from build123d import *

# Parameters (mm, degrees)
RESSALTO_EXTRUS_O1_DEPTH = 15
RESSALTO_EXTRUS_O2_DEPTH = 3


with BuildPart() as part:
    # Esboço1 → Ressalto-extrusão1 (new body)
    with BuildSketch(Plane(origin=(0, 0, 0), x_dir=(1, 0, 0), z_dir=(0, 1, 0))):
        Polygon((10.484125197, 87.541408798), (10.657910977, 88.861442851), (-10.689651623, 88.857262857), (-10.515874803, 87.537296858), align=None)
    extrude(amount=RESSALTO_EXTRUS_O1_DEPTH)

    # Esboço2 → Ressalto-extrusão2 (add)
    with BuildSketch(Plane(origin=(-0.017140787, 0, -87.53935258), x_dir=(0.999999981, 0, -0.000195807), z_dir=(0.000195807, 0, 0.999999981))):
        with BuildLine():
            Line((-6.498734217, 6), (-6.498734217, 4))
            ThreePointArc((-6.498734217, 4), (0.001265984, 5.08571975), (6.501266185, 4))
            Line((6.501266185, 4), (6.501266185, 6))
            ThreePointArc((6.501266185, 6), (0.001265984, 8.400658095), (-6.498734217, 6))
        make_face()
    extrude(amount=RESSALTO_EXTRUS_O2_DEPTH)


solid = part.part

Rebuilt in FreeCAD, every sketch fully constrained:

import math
import FreeCAD as App
import Part
import Sketcher
from FreeCAD import Vector
Q = App.Units.Quantity

doc = App.newDocument("Part")
params = doc.addObject("Spreadsheet::Sheet", "Params")
for row, (alias, value) in enumerate([
    ("sketch1_length", "21 mm"),
    ("pad1_length", "15 mm"),
    ("sketch2_radius", "20 mm"),
    ("sketch2_radius2", "10 mm"),
    ("sketch2_height", "2 mm"),
    ("pad2_length", "3 mm"),
], start=1):
    params.set(f"A{row}", alias)
    params.set(f"B{row}", "=" + value)
    params.setAlias(f"B{row}", alias)

body = doc.addObject("PartDesign::Body", "Body")

sketch1 = body.newObject("Sketcher::SketchObject", "Sketch")
sketch1.AttachmentSupport = (doc.getObject("XZ_Plane"), [""])
sketch1.MapMode = "FlatFace"
sketch1.addGeometry([
    Part.LineSegment(Vector(10.5, -87.5, 0), Vector(10.7, -88.9, 0)),
    Part.LineSegment(Vector(10.7, -88.9, 0), Vector(-10.7, -88.9, 0)),
    Part.LineSegment(Vector(-10.7, -88.9, 0), Vector(-10.5, -87.5, 0)),
    Part.LineSegment(Vector(-10.5, -87.5, 0), Vector(10.5, -87.5, 0)),
], False)
sketch1.addConstraint([
    Sketcher.Constraint("Coincident", 0, 2, 1, 1),
    Sketcher.Constraint("Coincident", 1, 2, 2, 1),
    Sketcher.Constraint("Coincident", 2, 2, 3, 1),
    Sketcher.Constraint("Coincident", 3, 2, 0, 1),
    Sketcher.Constraint("Parallel", 1, 3),
    Sketcher.Constraint("Distance", 3, 21.0),
    Sketcher.Constraint("Angle", 0, Q("-82.5 deg")),
    Sketcher.Constraint("Angle", 2, Q("82.5 deg")),
    Sketcher.Constraint("DistanceX", -1, 1, 0, 2, 10.657911),
    Sketcher.Constraint("DistanceX", 1, 2, -1, 1, 10.689652),
    Sketcher.Constraint("DistanceY", 3, 2, -1, 1, 87.541409),
    Sketcher.Constraint("DistanceY", 0, 2, 1, 2, 0.00418),
])
sketch1.setExpression("Constraints[5]", "Params.sketch1_length")
pad1 = body.newObject("PartDesign::Pad", "Pad")
pad1.Profile = sketch1
pad1.setExpression("Length", "Params.pad1_length")
pad1.Reversed = True

sketch2 = body.newObject("Sketcher::SketchObject", "Sketch001")
sketch2.Placement = App.Placement(Vector(-0.017141, 0, -87.539353), App.Rotation(Vector(0.999999981, 0, -0.000195807), Vector(0, 1, 0), Vector(0.000195807, 0, 0.999999981), "ZXY"))
sketch2.addGeometry([
    Part.LineSegment(Vector(-6.5, 6, 0), Vector(-6.5, 4, 0)),
    Part.ArcOfCircle(Part.Circle(Vector(0, -14.9, 0), Vector(0, 0, 1), 20), math.radians(71), math.radians(109)),
    Part.LineSegment(Vector(6.5, 4, 0), Vector(6.5, 6, 0)),
    Part.ArcOfCircle(Part.Circle(Vector(0, -1.6, 0), Vector(0, 0, 1), 10), math.radians(49), math.radians(131)),
], False)
sketch2.addConstraint([
    Sketcher.Constraint("Coincident", 0, 2, 1, 2),
    Sketcher.Constraint("Coincident", 1, 1, 2, 1),
    Sketcher.Constraint("Coincident", 2, 2, 3, 1),
    Sketcher.Constraint("Coincident", 3, 2, 0, 1),
    Sketcher.Constraint("Vertical", 0),
    Sketcher.Constraint("Vertical", 2),
    Sketcher.Constraint("Horizontal", 0, 2, 1, 1),
    Sketcher.Constraint("Horizontal", 2, 2, 3, 2),
    Sketcher.Constraint("Radius", 1, 20.0),
    Sketcher.Constraint("Radius", 3, 10.0),
    Sketcher.Constraint("DistanceY", 0, 2, 0, 1, 2.0),
    Sketcher.Constraint("DistanceY", -1, 1, 0, 2, 4.0),
    Sketcher.Constraint("DistanceX", 0, 2, 1, 1, 13.0),
    Sketcher.Constraint("DistanceX", -1, 1, 1, 3, 0.001266),
])
sketch2.setExpression("Constraints[8]", "Params.sketch2_radius")
sketch2.setExpression("Constraints[9]", "Params.sketch2_radius2")
sketch2.setExpression("Constraints[10]", "Params.sketch2_height")
pad2 = body.newObject("PartDesign::Pad", "Pad001")
pad2.Profile = sketch2
pad2.setExpression("Length", "Params.pad2_length")

doc.recompute()
